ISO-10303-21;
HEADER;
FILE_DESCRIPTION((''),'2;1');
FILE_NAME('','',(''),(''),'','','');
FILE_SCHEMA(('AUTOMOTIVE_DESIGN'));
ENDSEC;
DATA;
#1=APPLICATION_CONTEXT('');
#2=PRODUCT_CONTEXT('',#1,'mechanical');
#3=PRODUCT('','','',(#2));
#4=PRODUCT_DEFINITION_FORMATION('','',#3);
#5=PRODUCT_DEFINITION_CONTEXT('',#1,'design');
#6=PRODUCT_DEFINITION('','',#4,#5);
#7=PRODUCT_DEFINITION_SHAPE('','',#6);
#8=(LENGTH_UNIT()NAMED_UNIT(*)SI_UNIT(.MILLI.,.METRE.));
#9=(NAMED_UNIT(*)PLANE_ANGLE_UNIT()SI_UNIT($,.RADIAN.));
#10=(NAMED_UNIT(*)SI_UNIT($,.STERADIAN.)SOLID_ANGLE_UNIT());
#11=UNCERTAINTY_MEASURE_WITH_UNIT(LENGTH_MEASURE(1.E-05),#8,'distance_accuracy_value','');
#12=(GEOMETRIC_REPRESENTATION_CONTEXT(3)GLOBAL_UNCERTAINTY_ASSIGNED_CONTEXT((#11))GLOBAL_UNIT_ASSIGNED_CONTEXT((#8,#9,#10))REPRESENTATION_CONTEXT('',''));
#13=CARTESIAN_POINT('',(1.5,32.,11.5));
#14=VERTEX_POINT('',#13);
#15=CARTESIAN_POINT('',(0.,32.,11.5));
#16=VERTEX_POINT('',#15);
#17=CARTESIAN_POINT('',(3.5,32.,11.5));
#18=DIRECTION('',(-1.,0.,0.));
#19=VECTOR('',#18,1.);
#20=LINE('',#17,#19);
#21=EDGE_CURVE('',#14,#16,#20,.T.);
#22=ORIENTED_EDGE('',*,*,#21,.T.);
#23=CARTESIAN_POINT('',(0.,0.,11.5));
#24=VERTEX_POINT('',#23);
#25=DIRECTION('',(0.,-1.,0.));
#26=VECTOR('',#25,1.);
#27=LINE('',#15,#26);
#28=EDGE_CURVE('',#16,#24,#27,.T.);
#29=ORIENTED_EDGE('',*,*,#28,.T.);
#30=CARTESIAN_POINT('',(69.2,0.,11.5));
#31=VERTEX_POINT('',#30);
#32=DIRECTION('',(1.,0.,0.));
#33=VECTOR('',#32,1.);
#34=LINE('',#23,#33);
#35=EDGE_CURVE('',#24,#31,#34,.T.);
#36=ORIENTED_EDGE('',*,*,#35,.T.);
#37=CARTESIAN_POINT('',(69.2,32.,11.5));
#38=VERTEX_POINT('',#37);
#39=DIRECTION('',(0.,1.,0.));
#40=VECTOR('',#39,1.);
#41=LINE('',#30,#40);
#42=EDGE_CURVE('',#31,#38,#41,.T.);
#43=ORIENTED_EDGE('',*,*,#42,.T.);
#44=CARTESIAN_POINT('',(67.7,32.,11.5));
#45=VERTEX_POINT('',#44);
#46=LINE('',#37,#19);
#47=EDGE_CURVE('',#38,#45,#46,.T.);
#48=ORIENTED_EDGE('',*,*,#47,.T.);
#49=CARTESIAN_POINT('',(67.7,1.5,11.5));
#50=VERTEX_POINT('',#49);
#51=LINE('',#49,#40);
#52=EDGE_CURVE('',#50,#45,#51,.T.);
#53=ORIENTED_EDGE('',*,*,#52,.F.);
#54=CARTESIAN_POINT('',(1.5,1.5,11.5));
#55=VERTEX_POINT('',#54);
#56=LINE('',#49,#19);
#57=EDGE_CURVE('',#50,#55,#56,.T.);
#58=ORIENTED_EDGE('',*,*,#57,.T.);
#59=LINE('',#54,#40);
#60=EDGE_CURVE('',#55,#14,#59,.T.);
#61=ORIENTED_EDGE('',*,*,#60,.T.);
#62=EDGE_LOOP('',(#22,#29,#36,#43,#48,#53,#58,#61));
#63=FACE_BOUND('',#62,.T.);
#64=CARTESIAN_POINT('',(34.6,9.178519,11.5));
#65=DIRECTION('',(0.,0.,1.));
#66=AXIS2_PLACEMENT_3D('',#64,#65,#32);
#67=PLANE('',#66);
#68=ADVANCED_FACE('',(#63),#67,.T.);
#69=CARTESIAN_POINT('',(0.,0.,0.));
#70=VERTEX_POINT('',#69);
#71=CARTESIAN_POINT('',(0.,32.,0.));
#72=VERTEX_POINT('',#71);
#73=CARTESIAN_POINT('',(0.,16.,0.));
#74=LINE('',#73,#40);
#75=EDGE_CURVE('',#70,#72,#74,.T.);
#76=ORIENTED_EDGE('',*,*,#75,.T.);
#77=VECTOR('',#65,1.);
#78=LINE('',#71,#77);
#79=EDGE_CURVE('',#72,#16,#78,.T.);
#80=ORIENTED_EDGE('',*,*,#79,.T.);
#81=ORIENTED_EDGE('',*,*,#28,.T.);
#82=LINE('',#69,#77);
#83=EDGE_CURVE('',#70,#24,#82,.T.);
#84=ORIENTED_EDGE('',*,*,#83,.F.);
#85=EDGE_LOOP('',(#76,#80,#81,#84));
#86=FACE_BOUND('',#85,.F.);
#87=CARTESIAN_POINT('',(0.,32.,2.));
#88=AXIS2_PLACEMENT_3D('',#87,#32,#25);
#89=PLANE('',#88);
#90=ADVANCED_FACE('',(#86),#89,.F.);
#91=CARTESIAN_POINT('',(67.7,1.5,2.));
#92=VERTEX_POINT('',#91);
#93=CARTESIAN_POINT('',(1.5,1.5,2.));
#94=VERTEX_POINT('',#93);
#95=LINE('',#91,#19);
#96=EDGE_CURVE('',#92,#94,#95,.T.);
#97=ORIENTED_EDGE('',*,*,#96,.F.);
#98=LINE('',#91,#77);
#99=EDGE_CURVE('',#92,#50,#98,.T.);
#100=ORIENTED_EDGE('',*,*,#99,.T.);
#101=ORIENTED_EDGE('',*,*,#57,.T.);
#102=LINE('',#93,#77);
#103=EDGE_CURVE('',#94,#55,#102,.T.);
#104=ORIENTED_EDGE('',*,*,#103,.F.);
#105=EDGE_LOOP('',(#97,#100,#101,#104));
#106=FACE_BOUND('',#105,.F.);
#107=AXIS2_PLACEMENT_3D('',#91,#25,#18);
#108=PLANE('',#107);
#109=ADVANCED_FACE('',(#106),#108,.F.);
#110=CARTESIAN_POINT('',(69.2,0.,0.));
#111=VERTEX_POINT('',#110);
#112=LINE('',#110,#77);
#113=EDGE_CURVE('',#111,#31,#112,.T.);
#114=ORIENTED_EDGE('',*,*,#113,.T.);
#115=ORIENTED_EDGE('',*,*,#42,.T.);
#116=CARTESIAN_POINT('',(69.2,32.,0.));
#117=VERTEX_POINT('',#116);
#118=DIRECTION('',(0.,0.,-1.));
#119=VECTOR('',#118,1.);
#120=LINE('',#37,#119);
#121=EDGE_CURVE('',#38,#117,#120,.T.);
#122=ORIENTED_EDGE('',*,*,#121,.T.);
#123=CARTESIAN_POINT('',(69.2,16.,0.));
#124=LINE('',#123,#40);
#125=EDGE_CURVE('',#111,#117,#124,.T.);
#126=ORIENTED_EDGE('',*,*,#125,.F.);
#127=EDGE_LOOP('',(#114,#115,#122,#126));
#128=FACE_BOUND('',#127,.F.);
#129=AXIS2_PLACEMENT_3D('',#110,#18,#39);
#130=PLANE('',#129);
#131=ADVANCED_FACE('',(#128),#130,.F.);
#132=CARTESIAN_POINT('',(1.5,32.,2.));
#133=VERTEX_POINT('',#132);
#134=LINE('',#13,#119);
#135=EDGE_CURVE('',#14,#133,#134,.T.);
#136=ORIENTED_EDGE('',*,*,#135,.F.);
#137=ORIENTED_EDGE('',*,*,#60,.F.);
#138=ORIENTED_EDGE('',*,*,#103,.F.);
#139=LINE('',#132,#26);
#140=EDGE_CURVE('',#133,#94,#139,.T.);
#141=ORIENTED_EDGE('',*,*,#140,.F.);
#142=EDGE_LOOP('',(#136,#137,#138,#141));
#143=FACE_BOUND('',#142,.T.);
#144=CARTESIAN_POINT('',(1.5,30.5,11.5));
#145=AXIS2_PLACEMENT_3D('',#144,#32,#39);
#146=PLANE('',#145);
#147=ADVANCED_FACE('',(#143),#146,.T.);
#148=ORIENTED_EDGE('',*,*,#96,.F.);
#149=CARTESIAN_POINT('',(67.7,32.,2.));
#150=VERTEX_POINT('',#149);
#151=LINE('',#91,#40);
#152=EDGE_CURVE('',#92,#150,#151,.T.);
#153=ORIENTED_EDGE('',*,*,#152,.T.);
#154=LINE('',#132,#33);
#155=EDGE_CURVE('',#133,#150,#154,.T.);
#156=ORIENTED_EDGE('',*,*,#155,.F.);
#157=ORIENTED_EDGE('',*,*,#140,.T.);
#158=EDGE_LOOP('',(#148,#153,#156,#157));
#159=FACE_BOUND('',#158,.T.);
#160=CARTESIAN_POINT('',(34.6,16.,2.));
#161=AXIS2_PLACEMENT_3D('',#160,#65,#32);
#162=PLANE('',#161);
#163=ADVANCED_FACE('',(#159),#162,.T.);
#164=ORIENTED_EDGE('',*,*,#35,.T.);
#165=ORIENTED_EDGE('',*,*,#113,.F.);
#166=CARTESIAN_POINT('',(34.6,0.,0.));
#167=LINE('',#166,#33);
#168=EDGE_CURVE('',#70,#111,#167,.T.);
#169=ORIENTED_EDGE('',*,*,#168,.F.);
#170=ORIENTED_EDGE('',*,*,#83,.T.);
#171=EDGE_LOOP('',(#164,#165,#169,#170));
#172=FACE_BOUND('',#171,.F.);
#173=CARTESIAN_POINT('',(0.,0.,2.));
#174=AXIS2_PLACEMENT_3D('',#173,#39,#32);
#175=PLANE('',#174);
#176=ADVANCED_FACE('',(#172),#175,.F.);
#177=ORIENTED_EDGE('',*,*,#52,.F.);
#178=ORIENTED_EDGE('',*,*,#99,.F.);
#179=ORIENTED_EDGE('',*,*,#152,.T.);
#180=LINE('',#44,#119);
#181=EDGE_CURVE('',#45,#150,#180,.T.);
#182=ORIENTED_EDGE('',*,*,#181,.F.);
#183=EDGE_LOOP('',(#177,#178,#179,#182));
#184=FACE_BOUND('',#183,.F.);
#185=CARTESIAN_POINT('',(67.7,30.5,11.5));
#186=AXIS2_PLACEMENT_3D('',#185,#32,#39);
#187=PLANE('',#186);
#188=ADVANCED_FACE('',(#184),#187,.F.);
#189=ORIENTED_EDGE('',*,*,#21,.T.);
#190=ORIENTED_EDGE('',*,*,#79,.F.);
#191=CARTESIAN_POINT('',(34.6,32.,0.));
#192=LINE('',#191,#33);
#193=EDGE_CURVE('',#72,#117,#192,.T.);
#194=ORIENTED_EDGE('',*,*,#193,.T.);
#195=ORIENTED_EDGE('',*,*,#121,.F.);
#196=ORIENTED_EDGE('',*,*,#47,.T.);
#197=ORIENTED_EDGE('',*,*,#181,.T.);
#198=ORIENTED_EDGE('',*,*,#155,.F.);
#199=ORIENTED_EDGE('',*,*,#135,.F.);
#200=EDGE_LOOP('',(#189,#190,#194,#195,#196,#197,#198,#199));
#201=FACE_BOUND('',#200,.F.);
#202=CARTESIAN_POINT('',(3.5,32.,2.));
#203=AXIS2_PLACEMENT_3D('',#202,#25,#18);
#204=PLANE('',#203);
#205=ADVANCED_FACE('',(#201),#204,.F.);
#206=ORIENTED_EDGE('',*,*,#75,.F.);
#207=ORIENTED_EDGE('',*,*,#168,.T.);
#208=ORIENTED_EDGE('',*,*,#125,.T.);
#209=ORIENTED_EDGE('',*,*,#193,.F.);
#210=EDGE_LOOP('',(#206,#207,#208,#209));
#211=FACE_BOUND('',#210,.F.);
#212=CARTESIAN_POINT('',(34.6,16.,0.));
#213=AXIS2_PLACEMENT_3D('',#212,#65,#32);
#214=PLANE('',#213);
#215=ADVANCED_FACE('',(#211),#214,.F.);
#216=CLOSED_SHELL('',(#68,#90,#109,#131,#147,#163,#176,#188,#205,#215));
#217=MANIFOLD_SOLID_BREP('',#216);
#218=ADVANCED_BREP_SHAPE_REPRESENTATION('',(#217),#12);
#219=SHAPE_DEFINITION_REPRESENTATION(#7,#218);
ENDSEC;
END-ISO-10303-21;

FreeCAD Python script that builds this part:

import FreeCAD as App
import Part
import Sketcher
Q = App.Units.Quantity


def add_polygon(sketch, points):
    """Adds a closed chain of lines whose ends are joined by coincident constraints."""
    first, n = sketch.GeometryCount, len(points)
    for a, b in zip(points, points[1:] + points[:1]):
        sketch.addGeometry(Part.LineSegment(App.Vector(*a, 0), App.Vector(*b, 0)), False)
    for i in range(n):
        sketch.addConstraint(Sketcher.Constraint("Coincident", first + i, 2, first + (i + 1) % n, 1))

doc = App.newDocument("Part")
body = doc.addObject("PartDesign::Body", "Body")

# Sketch on XY plane
sketch1 = doc.addObject("Sketcher::SketchObject", "Sketch")
body.addObject(sketch1)
sketch1.AttachmentSupport = (doc.XY_Plane, [""])
sketch1.MapMode = "FlatFace"
add_polygon(sketch1, [(0, 32), (0, 0), (69, 0), (69, 32)])  # lines 0-3
sketch1.addConstraint([
    Sketcher.Constraint("Vertical", 0),
    Sketcher.Constraint("Horizontal", 1),
    Sketcher.Constraint("Vertical", 2),
    Sketcher.Constraint("Horizontal", 3),
    Sketcher.Constraint("Coincident", 0, 2, -1, 1),
    Sketcher.Constraint("DistanceY", 0, 2, 0, 1, Q("32 mm")),
    Sketcher.Constraint("DistanceX", 1, 1, 1, 2, Q("69.2 mm")),
])
pad1 = doc.addObject("PartDesign::Pad", "Pad")
body.addObject(pad1)
pad1.Profile = sketch1
pad1.Length = 2

# Sketch on XY plane
sketch2 = doc.addObject("Sketcher::SketchObject", "Sketch001")
body.addObject(sketch2)
sketch2.AttachmentSupport = (doc.XY_Plane, [""])
sketch2.MapMode = "FlatFace"
sketch2.AttachmentOffset = App.Placement(App.Vector(0, 0, 2), App.Rotation())
add_polygon(sketch2, [(3.5, 32), (0, 32), (0, 0), (69.2, 0), (69.2, 32), (65.7, 32), (65.7, 30.5), (67.7, 30.5), (67.7, 1.5), (1.5, 1.5), (1.5, 30.5), (3.5, 30.5)])  # lines 0-11
sketch2.addConstraint([
    Sketcher.Constraint("Horizontal", 0),
    Sketcher.Constraint("Vertical", 1),
    Sketcher.Constraint("Horizontal", 2),
    Sketcher.Constraint("Vertical", 3),
    Sketcher.Constraint("Horizontal", 4),
    Sketcher.Constraint("Vertical", 5),
    Sketcher.Constraint("Horizontal", 6),
    Sketcher.Constraint("Vertical", 7),
    Sketcher.Constraint("Horizontal", 8),
    Sketcher.Constraint("Vertical", 9),
    Sketcher.Constraint("Horizontal", 10),
    Sketcher.Constraint("Vertical", 11),
    Sketcher.Constraint("Coincident", 1, 2, -1, 1),
    Sketcher.Constraint("Horizontal", 0, 2, 3, 2),
    Sketcher.Constraint("Horizontal", 6, 2, 9, 2),
    Sketcher.Constraint("Equal", 0, 4),
    Sketcher.Constraint("Equal", 6, 10),
    Sketcher.Constraint("DistanceX", 6, 1, 6, 2, Q("2 mm")),
    Sketcher.Constraint("DistanceY", 1, 2, 1, 1, Q("32 mm")),
    Sketcher.Constraint("DistanceY", 7, 2, 7, 1, Q("29 mm")),
    Sketcher.Constraint("DistanceX", 0, 2, 0, 1, Q("3.5 mm")),
    Sketcher.Constraint("DistanceX", 2, 1, 2, 2, Q("69.2 mm")),
    Sketcher.Constraint("DistanceY", 5, 2, 5, 1, Q("1.5 mm")),
])
pad2 = doc.addObject("PartDesign::Pad", "Pad001")
body.addObject(pad2)
pad2.Profile = sketch2
pad2.Length = 9.5

# Sketch on XY plane
sketch3 = doc.addObject("Sketcher::SketchObject", "Sketch002")
body.addObject(sketch3)
sketch3.AttachmentSupport = (doc.XY_Plane, [""])
sketch3.MapMode = "FlatFace"
sketch3.AttachmentOffset = App.Placement(App.Vector(0, 0, 11.5), App.Rotation())
add_polygon(sketch3, [(1.5, 32), (1.5, 30.5), (67.7, 30.5), (67.7, 32)])  # lines 0-3
sketch3.addConstraint([
    Sketcher.Constraint("Vertical", 0),
    Sketcher.Constraint("Horizontal", 1),
    Sketcher.Constraint("Vertical", 2),
    Sketcher.Constraint("Horizontal", 3),
    Sketcher.Constraint("DistanceX", 1, 1, 1, 2, Q("66.2 mm")),
    Sketcher.Constraint("DistanceY", 0, 2, 0, 1, Q("1.5 mm")),
    Sketcher.Constraint("DistanceY", -1, 1, 2, 2, Q("32 mm")),
    Sketcher.Constraint("DistanceX", -1, 1, 0, 2, Q("1.5 mm")),
])
pocket1 = doc.addObject("PartDesign::Pocket", "Pocket")
body.addObject(pocket1)
pocket1.Profile = sketch3
pocket1.Length = 9.5

doc.recompute()
